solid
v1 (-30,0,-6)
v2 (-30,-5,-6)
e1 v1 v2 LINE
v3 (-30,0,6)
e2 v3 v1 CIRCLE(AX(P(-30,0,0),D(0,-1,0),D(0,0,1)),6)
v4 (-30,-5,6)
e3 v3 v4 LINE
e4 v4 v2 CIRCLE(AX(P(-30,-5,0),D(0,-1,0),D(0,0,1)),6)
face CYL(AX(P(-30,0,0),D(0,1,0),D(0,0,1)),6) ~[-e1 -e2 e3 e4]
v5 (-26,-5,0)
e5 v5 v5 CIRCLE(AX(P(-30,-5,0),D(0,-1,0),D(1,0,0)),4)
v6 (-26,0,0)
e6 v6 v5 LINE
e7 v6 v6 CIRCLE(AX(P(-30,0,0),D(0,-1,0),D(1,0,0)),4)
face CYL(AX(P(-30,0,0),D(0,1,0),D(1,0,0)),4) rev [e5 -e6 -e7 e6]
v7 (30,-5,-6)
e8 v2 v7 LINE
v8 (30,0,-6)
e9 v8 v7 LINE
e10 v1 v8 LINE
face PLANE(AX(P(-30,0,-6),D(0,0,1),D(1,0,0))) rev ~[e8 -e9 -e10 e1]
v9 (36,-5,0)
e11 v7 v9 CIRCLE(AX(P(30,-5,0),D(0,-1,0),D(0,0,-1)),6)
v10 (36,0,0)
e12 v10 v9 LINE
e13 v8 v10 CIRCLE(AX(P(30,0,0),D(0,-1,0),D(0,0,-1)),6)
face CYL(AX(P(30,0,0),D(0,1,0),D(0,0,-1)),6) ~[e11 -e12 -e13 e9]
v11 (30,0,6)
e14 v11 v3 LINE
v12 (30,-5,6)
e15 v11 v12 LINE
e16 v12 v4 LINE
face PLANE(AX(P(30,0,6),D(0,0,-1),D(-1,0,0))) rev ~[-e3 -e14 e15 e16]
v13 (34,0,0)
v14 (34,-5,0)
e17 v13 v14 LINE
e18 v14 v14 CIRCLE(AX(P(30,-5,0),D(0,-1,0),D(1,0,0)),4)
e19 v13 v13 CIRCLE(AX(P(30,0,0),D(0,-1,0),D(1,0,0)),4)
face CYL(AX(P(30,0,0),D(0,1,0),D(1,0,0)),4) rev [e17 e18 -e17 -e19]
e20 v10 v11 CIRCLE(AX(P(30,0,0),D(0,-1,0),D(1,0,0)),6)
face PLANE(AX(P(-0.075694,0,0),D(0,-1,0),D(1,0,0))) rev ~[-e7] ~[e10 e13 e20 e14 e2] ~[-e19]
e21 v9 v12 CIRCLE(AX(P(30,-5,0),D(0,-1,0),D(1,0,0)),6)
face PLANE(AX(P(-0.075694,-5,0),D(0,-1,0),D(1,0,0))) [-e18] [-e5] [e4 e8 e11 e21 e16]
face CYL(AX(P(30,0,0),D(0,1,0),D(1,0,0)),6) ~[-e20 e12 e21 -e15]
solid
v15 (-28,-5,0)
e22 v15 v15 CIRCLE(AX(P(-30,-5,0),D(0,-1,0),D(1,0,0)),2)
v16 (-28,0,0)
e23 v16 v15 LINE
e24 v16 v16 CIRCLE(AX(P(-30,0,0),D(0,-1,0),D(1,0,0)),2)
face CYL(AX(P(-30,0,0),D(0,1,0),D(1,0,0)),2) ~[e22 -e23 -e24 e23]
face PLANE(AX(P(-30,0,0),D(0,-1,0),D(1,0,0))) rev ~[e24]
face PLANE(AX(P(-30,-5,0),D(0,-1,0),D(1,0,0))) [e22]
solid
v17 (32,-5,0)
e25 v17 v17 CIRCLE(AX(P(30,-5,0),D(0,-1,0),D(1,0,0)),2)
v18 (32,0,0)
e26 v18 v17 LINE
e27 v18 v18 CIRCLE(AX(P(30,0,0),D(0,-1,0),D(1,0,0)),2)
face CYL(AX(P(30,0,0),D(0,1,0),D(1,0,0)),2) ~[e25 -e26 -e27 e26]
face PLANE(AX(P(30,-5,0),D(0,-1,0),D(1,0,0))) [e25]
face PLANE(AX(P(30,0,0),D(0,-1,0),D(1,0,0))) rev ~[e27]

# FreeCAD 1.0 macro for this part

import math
import FreeCAD as App
import Part
import Sketcher
Q = App.Units.Quantity

doc = App.newDocument("Part")
body = doc.addObject("PartDesign::Body", "Body")

sketch1 = body.newObject("Sketcher::SketchObject", "Sketch")
sketch1.AttachmentSupport = (doc.getObject("XZ_Plane"), [""])
sketch1.MapMode = "FlatFace"
sketch1.addGeometry([
    Part.LineSegment(App.Vector(-30, -6, 0), App.Vector(30, -6, 0)),
    Part.ArcOfCircle(Part.Circle(App.Vector(30, 0, 0), App.Vector(0, 0, 1), 6), math.radians(-90), math.radians(0)),
    Part.ArcOfCircle(Part.Circle(App.Vector(30, 0, 0), App.Vector(0, 0, 1), 6), math.radians(0), math.radians(90)),
    Part.LineSegment(App.Vector(30, 6, 0), App.Vector(-30, 6, 0)),
    Part.ArcOfCircle(Part.Circle(App.Vector(-30, 0, 0), App.Vector(0, 0, 1), 6), math.radians(90), math.radians(270)),
    Part.Circle(App.Vector(-30, 0, 0), App.Vector(0, 0, 1), 4),
    Part.Circle(App.Vector(30, 0, 0), App.Vector(0, 0, 1), 4),
], False)
sketch1.addConstraint([
    Sketcher.Constraint("Tangent", 0, 2, 1, 1),
    Sketcher.Constraint("Tangent", 1, 2, 2, 1),
    Sketcher.Constraint("Tangent", 2, 2, 3, 1),
    Sketcher.Constraint("Tangent", 3, 2, 4, 1),
    Sketcher.Constraint("Tangent", 4, 2, 0, 1),
    Sketcher.Constraint("Horizontal", 0),
    Sketcher.Constraint("Horizontal", 3),
    Sketcher.Constraint("Coincident", 5, 3, 4, 3),
    Sketcher.Constraint("Coincident", 6, 3, 1, 3),
    Sketcher.Constraint("Equal", 1, 2),
    Sketcher.Constraint("Equal", 5, 6),
    Sketcher.Constraint("Symmetric", 1, 3, 4, 3, -1, 1),
    Sketcher.Constraint("PointOnObject", 1, 2, -1),
    Sketcher.Constraint("Diameter", 5, Q("8 mm")),
    Sketcher.Constraint("Radius", 1, Q("6 mm")),
    Sketcher.Constraint("DistanceX", 0, 1, 0, 2, Q("60 mm")),
])
pad1 = body.newObject("PartDesign::Pad", "Pad")
pad1.Profile = sketch1
pad1.Length = 5
body2 = doc.addObject("PartDesign::Body", "Body001")

sketch2 = body2.newObject("Sketcher::SketchObject", "Sketch001")
sketch2.AttachmentSupport = (doc.getObject("XZ_Plane001"), [""])
sketch2.MapMode = "FlatFace"
sketch2.addGeometry(Part.Circle(App.Vector(-30, 0, 0), App.Vector(0, 0, 1), 2), False)
sketch2.addConstraint([
    Sketcher.Constraint("PointOnObject", 0, 3, -1),
    Sketcher.Constraint("Diameter", 0, Q("4 mm")),
    Sketcher.Constraint("DistanceX", 0, 3, -1, 1, Q("30 mm")),
])
pad2 = body2.newObject("PartDesign::Pad", "Pad001")
pad2.Profile = sketch2
pad2.Length = 5
body3 = doc.addObject("PartDesign::Body", "Body002")

sketch3 = body3.newObject("Sketcher::SketchObject", "Sketch002")
sketch3.AttachmentSupport = (doc.getObject("XZ_Plane002"), [""])
sketch3.MapMode = "FlatFace"
sketch3.addGeometry(Part.Circle(App.Vector(30, 0, 0), App.Vector(0, 0, 1), 2), False)
sketch3.addConstraint([
    Sketcher.Constraint("PointOnObject", 0, 3, -1),
    Sketcher.Constraint("Diameter", 0, Q("4 mm")),
    Sketcher.Constraint("DistanceX", -1, 1, 0, 3, Q("30 mm")),
])
pad3 = body3.newObject("PartDesign::Pad", "Pad002")
pad3.Profile = sketch3
pad3.Length = 5

doc.recompute()
